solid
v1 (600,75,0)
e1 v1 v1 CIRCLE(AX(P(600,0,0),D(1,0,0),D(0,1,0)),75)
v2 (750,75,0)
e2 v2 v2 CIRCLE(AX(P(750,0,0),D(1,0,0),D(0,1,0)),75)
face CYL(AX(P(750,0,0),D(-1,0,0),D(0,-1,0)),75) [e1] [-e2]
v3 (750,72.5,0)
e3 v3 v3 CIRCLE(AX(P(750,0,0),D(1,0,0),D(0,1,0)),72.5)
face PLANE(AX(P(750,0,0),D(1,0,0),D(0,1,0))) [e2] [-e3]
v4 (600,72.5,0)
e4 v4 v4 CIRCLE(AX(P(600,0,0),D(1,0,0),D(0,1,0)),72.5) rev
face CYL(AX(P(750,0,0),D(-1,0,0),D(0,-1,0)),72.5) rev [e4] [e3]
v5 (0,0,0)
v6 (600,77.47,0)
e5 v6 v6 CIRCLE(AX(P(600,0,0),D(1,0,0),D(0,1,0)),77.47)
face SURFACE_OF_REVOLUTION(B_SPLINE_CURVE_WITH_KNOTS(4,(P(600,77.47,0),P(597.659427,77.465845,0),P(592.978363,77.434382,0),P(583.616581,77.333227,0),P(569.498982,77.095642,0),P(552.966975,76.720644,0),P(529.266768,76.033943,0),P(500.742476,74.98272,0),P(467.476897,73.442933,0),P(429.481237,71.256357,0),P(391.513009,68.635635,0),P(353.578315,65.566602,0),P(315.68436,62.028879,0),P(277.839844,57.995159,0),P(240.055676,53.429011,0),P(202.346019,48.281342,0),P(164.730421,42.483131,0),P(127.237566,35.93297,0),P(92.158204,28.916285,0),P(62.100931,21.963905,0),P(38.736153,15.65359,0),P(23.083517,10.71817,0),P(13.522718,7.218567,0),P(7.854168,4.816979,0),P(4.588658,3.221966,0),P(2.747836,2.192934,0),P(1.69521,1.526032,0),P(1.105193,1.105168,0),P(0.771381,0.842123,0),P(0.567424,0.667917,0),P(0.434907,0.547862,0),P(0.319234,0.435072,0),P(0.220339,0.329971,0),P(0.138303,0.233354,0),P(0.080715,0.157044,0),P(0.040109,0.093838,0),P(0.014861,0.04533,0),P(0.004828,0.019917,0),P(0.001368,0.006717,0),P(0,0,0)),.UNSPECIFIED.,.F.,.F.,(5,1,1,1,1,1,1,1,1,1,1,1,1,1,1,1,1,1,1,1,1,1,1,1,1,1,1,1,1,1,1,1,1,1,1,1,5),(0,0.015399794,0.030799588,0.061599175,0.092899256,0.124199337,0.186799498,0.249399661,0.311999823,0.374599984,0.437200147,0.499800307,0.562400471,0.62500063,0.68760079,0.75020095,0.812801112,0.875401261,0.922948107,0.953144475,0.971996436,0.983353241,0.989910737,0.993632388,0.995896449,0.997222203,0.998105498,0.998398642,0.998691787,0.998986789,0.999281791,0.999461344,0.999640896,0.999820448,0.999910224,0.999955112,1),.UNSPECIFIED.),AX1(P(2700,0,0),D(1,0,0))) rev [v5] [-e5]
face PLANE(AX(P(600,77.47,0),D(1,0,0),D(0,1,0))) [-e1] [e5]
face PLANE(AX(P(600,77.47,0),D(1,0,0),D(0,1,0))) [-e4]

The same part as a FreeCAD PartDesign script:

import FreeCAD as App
import Part
import Sketcher
from FreeCAD import Vector

doc = App.newDocument("Part")
params = doc.addObject("Spreadsheet::Sheet", "Params")
for row, (alias, value) in enumerate([
    ("revolution_angle", "360 deg"),
    ("sketch2_diameter", "150 mm"),
    ("sketch2_diameter2", "145 mm"),
    ("pad1_length", "150 mm"),
], start=1):
    params.set(f"A{row}", alias)
    params.set(f"B{row}", "=" + value)
    params.setAlias(f"B{row}", alias)

body = doc.addObject("PartDesign::Body", "Body")

# Sketch on XY plane
sketch1 = body.newObject("Sketcher::SketchObject", "Sketch")
sketch1.AttachmentSupport = (doc.getObject("XY_Plane"), [""])
sketch1.MapMode = "FlatFace"
sketch1.addGeometry(Part.LineSegment(Vector(600, 0, 0), Vector(600, 77.47, 0)), False)
sketch1.addGeometry(Part.BSplineCurve([Vector(0, 0, 0), Vector(0.001368, 0.006717, 0), Vector(0.004828, 0.019917, 0), Vector(0.014861, 0.04533, 0), Vector(0.040109, 0.093838, 0), Vector(0.080715, 0.157044, 0), Vector(0.138303, 0.233354, 0), Vector(0.220339, 0.329971, 0), Vector(0.319234, 0.435072, 0), Vector(0.434907, 0.547862, 0), Vector(0.567424, 0.667917, 0), Vector(0.771381, 0.842123, 0), Vector(1.105193, 1.105168, 0), Vector(1.69521, 1.526032, 0), Vector(2.747836, 2.192934, 0), Vector(4.588658, 3.221966, 0), Vector(7.854168, 4.816979, 0), Vector(13.522718, 7.218567, 0), Vector(23.083517, 10.71817, 0), Vector(38.736153, 15.65359, 0), Vector(62.100931, 21.963905, 0), Vector(92.158204, 28.916285, 0), Vector(127.237566, 35.93297, 0), Vector(164.730421, 42.483131, 0), Vector(202.346019, 48.281342, 0), Vector(240.055676, 53.429011, 0), Vector(277.839844, 57.995159, 0), Vector(315.68436, 62.028879, 0), Vector(353.578315, 65.566602, 0), Vector(391.513009, 68.635635, 0), Vector(429.481237, 71.256357, 0), Vector(467.476897, 73.442933, 0), Vector(500.742476, 74.98272, 0), Vector(529.266768, 76.033943, 0), Vector(552.966975, 76.720644, 0), Vector(569.498982, 77.095642, 0), Vector(583.616581, 77.333227, 0), Vector(592.978363, 77.434382, 0), Vector(597.659427, 77.465845, 0), Vector(600, 77.47, 0)], [5, 1, 1, 1, 1, 1, 1, 1, 1, 1, 1, 1, 1, 1, 1, 1, 1, 1, 1, 1, 1, 1, 1, 1, 1, 1, 1, 1, 1, 1, 1, 1, 1, 1, 1, 1, 5], [0, 0.000044888, 0.000089776, 0.000179552, 0.000359104, 0.000538656, 0.000718209, 0.001013211, 0.001308213, 0.001601358, 0.001894502, 0.002777797, 0.004103551, 0.006367612, 0.010089263, 0.016646759, 0.028003564, 0.046855525, 0.077051893, 0.124598739, 0.187198888, 0.24979905, 0.31239921, 0.37499937, 0.437599529, 0.500199693, 0.562799853, 0.625400016, 0.688000177, 0.750600339, 0.813200502, 0.875800663, 0.907100744, 0.938400825, 0.969200412, 0.984600206, 1], False, 4, [1, 1, 1, 1, 1, 1, 1, 1, 1, 1, 1, 1, 1, 1, 1, 1, 1, 1, 1, 1, 1, 1, 1, 1, 1, 1, 1, 1, 1, 1, 1, 1, 1, 1, 1, 1, 1, 1, 1, 1], False), False)
sketch1.addGeometry(Part.LineSegment(Vector(0, 0, 0), Vector(600, 0, 0)), False)
sketch1.addConstraint(Sketcher.Constraint("Block", 1))
sketch1.addConstraint(Sketcher.Constraint("Coincident", 0, 2, 1, 2))
sketch1.addConstraint(Sketcher.Constraint("Coincident", 1, 1, 2, 1))
sketch1.addConstraint(Sketcher.Constraint("Coincident", 2, 2, 0, 1))
sketch1.addConstraint(Sketcher.Constraint("Vertical", 0))
sketch1.addConstraint(Sketcher.Constraint("Horizontal", 2))
revolution = body.newObject("PartDesign::Revolution", "Revolution")
revolution.Profile = sketch1
revolution.ReferenceAxis = (sketch1, ["H_Axis"])
revolution.setExpression("Angle", "Params.revolution_angle")

# Sketch on YZ plane
sketch2 = body.newObject("Sketcher::SketchObject", "Sketch001")
sketch2.AttachmentSupport = (doc.getObject("YZ_Plane"), [""])
sketch2.MapMode = "FlatFace"
sketch2.AttachmentOffset = App.Placement(Vector(0, 0, 600), App.Rotation())
sketch2.addGeometry(Part.Circle(Vector(0, 0, 0), Vector(0, 0, 1), 75), False)
sketch2.addGeometry(Part.Circle(Vector(0, 0, 0), Vector(0, 0, 1), 72.5), False)
sketch2.addConstraint(Sketcher.Constraint("Coincident", 0, 3, -1, 1))
sketch2.addConstraint(Sketcher.Constraint("Coincident", 1, 3, -1, 1))
sketch2.addConstraint(Sketcher.Constraint("Diameter", 0, 150.0))
sketch2.addConstraint(Sketcher.Constraint("Diameter", 1, 145.0))
sketch2.setExpression("Constraints[2]", "Params.sketch2_diameter")
sketch2.setExpression("Constraints[3]", "Params.sketch2_diameter2")
pad1 = body.newObject("PartDesign::Pad", "Pad")
pad1.Profile = sketch2
pad1.setExpression("Length", "Params.pad1_length")

doc.recompute()
